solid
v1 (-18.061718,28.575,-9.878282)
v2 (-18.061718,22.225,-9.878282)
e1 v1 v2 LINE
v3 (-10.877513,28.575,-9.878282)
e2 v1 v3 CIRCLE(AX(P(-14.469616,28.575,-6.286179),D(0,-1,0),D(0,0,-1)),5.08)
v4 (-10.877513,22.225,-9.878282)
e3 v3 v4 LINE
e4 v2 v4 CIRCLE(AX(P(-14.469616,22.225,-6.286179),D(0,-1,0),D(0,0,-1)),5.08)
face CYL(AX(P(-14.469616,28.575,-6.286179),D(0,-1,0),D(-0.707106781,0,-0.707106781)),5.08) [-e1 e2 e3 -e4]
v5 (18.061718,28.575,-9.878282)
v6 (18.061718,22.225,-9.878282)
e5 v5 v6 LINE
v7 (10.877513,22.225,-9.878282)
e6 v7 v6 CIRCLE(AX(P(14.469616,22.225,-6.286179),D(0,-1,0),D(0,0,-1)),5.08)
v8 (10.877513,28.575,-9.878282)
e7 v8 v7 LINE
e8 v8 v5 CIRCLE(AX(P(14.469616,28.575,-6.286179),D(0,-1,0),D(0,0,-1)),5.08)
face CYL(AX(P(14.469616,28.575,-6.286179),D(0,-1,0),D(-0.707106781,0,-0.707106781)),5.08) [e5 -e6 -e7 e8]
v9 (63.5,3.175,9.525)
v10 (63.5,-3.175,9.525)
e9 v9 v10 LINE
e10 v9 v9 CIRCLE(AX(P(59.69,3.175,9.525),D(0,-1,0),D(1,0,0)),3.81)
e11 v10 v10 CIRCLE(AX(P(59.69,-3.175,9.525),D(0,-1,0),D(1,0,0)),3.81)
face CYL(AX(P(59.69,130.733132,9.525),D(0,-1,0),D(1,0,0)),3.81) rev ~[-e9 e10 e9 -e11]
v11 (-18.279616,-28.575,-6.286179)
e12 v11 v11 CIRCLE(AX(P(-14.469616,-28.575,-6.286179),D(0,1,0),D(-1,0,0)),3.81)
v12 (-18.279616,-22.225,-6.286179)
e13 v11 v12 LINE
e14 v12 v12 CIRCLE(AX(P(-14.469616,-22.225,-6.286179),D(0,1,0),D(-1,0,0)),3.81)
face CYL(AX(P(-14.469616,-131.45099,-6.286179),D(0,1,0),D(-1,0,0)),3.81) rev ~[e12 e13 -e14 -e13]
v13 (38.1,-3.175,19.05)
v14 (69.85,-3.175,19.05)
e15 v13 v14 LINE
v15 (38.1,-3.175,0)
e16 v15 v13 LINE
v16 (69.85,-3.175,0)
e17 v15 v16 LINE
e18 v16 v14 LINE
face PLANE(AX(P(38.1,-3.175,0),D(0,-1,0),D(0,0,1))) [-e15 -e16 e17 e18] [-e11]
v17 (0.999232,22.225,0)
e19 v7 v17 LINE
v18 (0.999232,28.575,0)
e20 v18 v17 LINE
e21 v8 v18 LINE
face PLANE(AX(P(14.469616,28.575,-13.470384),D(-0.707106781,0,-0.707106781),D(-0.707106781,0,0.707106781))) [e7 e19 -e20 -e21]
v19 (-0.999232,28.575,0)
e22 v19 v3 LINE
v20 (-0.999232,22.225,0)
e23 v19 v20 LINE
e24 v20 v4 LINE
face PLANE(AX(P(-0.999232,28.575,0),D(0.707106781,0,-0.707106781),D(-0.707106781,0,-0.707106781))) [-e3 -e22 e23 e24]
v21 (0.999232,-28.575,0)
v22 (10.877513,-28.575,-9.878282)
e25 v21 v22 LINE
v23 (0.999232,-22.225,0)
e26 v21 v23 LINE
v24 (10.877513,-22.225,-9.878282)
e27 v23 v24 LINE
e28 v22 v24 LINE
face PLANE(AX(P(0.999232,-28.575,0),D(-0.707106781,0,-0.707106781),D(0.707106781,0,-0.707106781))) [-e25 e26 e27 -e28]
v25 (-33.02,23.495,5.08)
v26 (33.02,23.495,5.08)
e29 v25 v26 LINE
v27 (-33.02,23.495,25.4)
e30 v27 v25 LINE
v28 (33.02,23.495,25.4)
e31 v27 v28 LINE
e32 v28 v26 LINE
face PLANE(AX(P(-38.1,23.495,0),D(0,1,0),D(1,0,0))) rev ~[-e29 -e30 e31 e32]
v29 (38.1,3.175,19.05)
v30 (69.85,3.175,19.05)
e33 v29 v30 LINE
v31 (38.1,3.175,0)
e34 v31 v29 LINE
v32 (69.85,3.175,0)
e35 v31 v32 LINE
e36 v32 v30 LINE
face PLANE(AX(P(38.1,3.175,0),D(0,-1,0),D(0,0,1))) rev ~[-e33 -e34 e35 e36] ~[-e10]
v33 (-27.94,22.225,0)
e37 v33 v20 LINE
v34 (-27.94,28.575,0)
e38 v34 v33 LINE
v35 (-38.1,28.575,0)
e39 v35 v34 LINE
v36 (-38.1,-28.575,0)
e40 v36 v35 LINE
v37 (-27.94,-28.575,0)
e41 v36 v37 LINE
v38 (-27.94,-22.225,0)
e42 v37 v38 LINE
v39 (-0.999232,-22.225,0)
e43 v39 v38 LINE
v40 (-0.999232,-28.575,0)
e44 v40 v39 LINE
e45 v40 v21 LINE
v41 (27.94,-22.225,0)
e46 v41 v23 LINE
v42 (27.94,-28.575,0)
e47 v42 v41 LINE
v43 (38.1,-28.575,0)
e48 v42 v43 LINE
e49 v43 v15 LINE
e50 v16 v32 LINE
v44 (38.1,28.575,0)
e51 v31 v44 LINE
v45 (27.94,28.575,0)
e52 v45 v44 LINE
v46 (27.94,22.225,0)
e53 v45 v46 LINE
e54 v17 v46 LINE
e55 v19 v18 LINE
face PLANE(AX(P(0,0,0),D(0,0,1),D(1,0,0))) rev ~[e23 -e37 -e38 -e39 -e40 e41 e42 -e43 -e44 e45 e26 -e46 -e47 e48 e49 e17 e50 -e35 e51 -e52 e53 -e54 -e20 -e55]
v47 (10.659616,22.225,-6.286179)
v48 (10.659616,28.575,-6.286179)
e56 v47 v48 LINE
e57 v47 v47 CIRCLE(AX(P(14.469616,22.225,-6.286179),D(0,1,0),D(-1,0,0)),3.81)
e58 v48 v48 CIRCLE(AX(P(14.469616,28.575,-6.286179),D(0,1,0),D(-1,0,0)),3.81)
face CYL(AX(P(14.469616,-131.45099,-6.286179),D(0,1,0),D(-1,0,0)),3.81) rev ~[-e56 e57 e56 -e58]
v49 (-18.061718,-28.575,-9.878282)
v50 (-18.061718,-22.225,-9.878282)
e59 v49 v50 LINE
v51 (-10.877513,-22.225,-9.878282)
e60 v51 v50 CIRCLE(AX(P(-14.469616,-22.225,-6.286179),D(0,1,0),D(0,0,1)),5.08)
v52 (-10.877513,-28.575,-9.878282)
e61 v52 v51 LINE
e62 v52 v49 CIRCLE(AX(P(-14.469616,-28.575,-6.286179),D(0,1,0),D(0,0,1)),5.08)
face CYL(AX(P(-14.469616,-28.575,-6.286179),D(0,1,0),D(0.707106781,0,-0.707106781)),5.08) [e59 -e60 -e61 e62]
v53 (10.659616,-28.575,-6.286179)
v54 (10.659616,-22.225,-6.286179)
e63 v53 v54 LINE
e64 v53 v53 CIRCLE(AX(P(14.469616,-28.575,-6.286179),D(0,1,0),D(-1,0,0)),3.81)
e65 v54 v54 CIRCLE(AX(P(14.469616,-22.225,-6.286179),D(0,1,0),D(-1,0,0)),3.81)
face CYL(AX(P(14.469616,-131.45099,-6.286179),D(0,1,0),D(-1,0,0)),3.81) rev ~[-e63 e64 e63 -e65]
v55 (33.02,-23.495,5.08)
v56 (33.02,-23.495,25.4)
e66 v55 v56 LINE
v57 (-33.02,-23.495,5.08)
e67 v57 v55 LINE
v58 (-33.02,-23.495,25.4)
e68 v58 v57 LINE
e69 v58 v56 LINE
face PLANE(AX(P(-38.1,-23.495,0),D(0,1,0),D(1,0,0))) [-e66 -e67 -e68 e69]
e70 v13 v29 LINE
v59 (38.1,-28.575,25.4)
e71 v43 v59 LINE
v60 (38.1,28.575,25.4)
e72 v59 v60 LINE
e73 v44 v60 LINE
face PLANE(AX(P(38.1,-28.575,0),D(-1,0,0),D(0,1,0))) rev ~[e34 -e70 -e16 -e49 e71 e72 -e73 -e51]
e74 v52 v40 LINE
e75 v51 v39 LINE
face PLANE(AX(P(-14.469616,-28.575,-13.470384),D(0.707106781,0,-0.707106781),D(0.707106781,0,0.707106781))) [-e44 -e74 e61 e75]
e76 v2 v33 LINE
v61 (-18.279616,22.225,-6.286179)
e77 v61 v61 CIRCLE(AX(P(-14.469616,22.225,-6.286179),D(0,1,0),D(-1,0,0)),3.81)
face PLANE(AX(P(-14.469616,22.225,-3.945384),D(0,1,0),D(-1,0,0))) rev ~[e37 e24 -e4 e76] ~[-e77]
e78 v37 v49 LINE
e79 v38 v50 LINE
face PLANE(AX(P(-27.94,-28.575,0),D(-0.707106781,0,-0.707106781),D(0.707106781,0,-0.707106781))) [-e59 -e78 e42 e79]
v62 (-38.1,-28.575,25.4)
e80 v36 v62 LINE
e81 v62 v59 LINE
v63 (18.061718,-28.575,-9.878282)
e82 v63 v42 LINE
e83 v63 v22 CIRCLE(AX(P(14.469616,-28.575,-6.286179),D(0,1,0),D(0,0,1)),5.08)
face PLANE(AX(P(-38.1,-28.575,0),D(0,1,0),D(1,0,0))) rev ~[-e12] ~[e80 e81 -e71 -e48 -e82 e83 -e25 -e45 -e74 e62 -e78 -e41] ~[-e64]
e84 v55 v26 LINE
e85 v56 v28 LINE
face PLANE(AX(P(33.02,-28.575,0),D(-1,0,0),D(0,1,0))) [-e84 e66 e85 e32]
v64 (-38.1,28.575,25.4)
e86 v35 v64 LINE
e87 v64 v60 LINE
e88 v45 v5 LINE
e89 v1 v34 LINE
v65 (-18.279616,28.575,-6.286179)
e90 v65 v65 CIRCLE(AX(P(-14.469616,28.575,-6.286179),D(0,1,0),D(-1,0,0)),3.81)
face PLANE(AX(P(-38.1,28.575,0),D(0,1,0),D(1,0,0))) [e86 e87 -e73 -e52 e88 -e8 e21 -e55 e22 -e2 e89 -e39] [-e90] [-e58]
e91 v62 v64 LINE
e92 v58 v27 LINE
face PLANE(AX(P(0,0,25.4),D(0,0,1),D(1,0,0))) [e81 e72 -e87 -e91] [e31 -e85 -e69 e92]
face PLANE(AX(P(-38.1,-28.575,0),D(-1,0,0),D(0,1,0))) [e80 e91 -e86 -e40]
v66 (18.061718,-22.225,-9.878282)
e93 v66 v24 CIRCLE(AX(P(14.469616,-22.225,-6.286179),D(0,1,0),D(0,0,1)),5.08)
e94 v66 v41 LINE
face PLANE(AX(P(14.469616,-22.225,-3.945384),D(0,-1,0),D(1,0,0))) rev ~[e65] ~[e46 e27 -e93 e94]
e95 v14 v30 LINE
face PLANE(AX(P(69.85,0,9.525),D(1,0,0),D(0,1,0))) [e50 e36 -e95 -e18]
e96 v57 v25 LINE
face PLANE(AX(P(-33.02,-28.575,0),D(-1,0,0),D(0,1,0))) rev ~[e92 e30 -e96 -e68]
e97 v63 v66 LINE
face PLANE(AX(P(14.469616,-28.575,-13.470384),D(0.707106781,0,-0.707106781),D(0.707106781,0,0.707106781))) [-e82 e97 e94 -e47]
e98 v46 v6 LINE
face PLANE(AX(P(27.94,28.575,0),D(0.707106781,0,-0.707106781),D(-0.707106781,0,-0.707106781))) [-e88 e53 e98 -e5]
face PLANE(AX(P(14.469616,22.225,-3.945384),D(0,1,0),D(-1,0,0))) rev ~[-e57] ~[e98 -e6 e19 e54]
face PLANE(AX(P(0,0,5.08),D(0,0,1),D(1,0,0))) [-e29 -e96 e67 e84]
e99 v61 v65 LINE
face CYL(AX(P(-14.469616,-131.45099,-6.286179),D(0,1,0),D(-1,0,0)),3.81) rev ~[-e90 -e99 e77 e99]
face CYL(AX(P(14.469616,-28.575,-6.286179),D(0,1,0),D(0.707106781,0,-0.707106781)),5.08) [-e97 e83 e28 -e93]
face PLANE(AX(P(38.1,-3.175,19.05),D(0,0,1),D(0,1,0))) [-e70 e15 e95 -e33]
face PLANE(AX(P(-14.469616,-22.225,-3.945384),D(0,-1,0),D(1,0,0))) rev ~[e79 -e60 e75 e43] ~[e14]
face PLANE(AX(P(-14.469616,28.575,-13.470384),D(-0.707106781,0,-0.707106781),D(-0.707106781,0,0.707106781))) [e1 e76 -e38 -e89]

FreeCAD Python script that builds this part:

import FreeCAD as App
import Part
import Sketcher
Q = App.Units.Quantity


def edges_at(feature, points):
    """Names of the edges that pass closest to the given points."""
    edges = feature.Shape.Edges
    near = lambda p: min(range(len(edges)), key=lambda i: edges[i].distToShape(Part.Vertex(*p))[0])
    return sorted({f"Edge{near(p) + 1}" for p in points})


def faces_at(feature, points):
    """Names of the faces that lie closest to the given points."""
    faces = feature.Shape.Faces
    near = lambda p: min(range(len(faces)), key=lambda i: faces[i].distToShape(Part.Vertex(*p))[0])
    return sorted({f"Face{near(p) + 1}" for p in points})

doc = App.newDocument("Part")
body = doc.addObject("PartDesign::Body", "Body")

sketch1 = doc.addObject("Sketcher::SketchObject", "Sketch")
body.addObject(sketch1)
sketch1.AttachmentSupport = (doc.XY_Plane, [""])
sketch1.MapMode = "FlatFace"
sketch1.addGeometry(Part.LineSegment(App.Vector(-38, 29, 0), App.Vector(-38, -29, 0)), False)
sketch1.addGeometry(Part.LineSegment(App.Vector(-38, -29, 0), App.Vector(38, -29, 0)), False)
sketch1.addGeometry(Part.LineSegment(App.Vector(38, -29, 0), App.Vector(38, 29, 0)), False)
sketch1.addGeometry(Part.LineSegment(App.Vector(38, 29, 0), App.Vector(-38, 29, 0)), False)
sketch1.addConstraint(Sketcher.Constraint("Coincident", 0, 2, 1, 1))
sketch1.addConstraint(Sketcher.Constraint("Coincident", 1, 2, 2, 1))
sketch1.addConstraint(Sketcher.Constraint("Coincident", 2, 2, 3, 1))
sketch1.addConstraint(Sketcher.Constraint("Coincident", 3, 2, 0, 1))
sketch1.addConstraint(Sketcher.Constraint("Vertical", 0))
sketch1.addConstraint(Sketcher.Constraint("Horizontal", 1))
sketch1.addConstraint(Sketcher.Constraint("Vertical", 2))
sketch1.addConstraint(Sketcher.Constraint("Horizontal", 3))
sketch1.addConstraint(Sketcher.Constraint("Symmetric", 0, 2, 2, 2, -1, 1))
sketch1.addConstraint(Sketcher.Constraint("DistanceX", 1, 1, 1, 2, Q("3 in")))
sketch1.addConstraint(Sketcher.Constraint("DistanceY", 0, 2, 0, 1, Q("2.25 in")))
pad1 = doc.addObject("PartDesign::Pad", "Pad")
body.addObject(pad1)
pad1.Profile = sketch1
pad1.Length = Q("1 in")
doc.recompute()

thickness = doc.addObject("PartDesign::Thickness", "Thickness")
body.addObject(thickness)
thickness.Base = (pad1, faces_at(pad1, [(0, 0, 25.4)]))
thickness.Value = Q("0.2 in")
thickness.Reversed = True
thickness.Join = "Arc"

sketch2 = doc.addObject("Sketcher::SketchObject", "Sketch001")
body.addObject(sketch2)
sketch2.AttachmentSupport = (doc.XZ_Plane, [""])
sketch2.MapMode = "FlatFace"
sketch2.AttachmentOffset = App.Placement(App.Vector(0, 0, 1.125 * 25.4), App.Rotation())
sketch2.addGeometry(Part.LineSegment(App.Vector(-1, 0, 0), App.Vector(-28, 0, 0)), False)
sketch2.addGeometry(Part.LineSegment(App.Vector(-28, 0, 0), App.Vector(-14, -13, 0)), False)
sketch2.addGeometry(Part.LineSegment(App.Vector(-14, -13, 0), App.Vector(-1, 0, 0)), False)
sketch2.addGeometry(Part.LineSegment(App.Vector(28, 0, 0), App.Vector(1, 0, 0)), False)
sketch2.addGeometry(Part.LineSegment(App.Vector(1, 0, 0), App.Vector(14, -13, 0)), False)
sketch2.addGeometry(Part.LineSegment(App.Vector(14, -13, 0), App.Vector(28, 0, 0)), False)
sketch2.addConstraint(Sketcher.Constraint("Coincident", 0, 2, 1, 1))
sketch2.addConstraint(Sketcher.Constraint("Coincident", 1, 2, 2, 1))
sketch2.addConstraint(Sketcher.Constraint("Coincident", 2, 2, 0, 1))
sketch2.addConstraint(Sketcher.Constraint("Coincident", 3, 2, 4, 1))
sketch2.addConstraint(Sketcher.Constraint("Coincident", 4, 2, 5, 1))
sketch2.addConstraint(Sketcher.Constraint("Coincident", 5, 2, 3, 1))
sketch2.addConstraint(Sketcher.Constraint("Horizontal", 0))
sketch2.addConstraint(Sketcher.Constraint("Horizontal", 3))
sketch2.addConstraint(Sketcher.Constraint("Symmetric", 2, 2, 3, 2, -1, 1))
sketch2.addConstraint(Sketcher.Constraint("Symmetric", 1, 2, 4, 2, -2))
sketch2.addConstraint(Sketcher.Constraint("Symmetric", 0, 2, 5, 2, -2))
sketch2.addConstraint(Sketcher.Constraint("Perpendicular", 1, 2))
sketch2.addConstraint(Sketcher.Constraint("Perpendicular", 2, 4))
sketch2.addConstraint(Sketcher.Constraint("DistanceX", 0, 2, -1, 1, Q("1.1 in")))
sketch2.addConstraint(Sketcher.Constraint("Distance", 1, Q("0.75 in")))
pad2 = doc.addObject("PartDesign::Pad", "Pad001")
body.addObject(pad2)
pad2.Profile = sketch2
pad2.Length = Q("0.25 in")
pad2.Reversed = True
doc.recompute()

fillet = doc.addObject("PartDesign::Fillet", "Fillet")
body.addObject(fillet)
fillet.Base = (pad2, edges_at(pad2, [(-14.47, -25.4, -13.47), (14.47, -25.4, -13.47)]))
fillet.Radius = Q("0.2 in")

sketch3 = doc.addObject("Sketcher::SketchObject", "Sketch002")
body.addObject(sketch3)
sketch3.AttachmentSupport = (doc.XZ_Plane, [""])
sketch3.MapMode = "FlatFace"
sketch3.AttachmentOffset = App.Placement(App.Vector(0, 0, -1.125 * 25.4), App.Rotation())
sketch3.addGeometry(Part.LineSegment(App.Vector(1, 0, 0), App.Vector(28, 0, 0)), False)
sketch3.addGeometry(Part.LineSegment(App.Vector(28, 0, 0), App.Vector(14, -13, 0)), False)
sketch3.addGeometry(Part.LineSegment(App.Vector(14, -13, 0), App.Vector(1, 0, 0)), False)
sketch3.addGeometry(Part.LineSegment(App.Vector(-28, 0, 0), App.Vector(-1, 0, 0)), False)
sketch3.addGeometry(Part.LineSegment(App.Vector(-1, 0, 0), App.Vector(-14, -13, 0)), False)
sketch3.addGeometry(Part.LineSegment(App.Vector(-14, -13, 0), App.Vector(-28, 0, 0)), False)
sketch3.addConstraint(Sketcher.Constraint("Coincident", 0, 2, 1, 1))
sketch3.addConstraint(Sketcher.Constraint("Coincident", 1, 2, 2, 1))
sketch3.addConstraint(Sketcher.Constraint("Coincident", 2, 2, 0, 1))
sketch3.addConstraint(Sketcher.Constraint("Coincident", 3, 2, 4, 1))
sketch3.addConstraint(Sketcher.Constraint("Coincident", 4, 2, 5, 1))
sketch3.addConstraint(Sketcher.Constraint("Coincident", 5, 2, 3, 1))
sketch3.addConstraint(Sketcher.Constraint("Horizontal", 0))
sketch3.addConstraint(Sketcher.Constraint("Horizontal", 3))
sketch3.addConstraint(Sketcher.Constraint("Symmetric", 2, 2, 3, 2, -1, 1))
sketch3.addConstraint(Sketcher.Constraint("Symmetric", 1, 2, 4, 2, -2))
sketch3.addConstraint(Sketcher.Constraint("Symmetric", 0, 2, 5, 2, -2))
sketch3.addConstraint(Sketcher.Constraint("Perpendicular", 1, 2))
sketch3.addConstraint(Sketcher.Constraint("Perpendicular", 2, 4))
sketch3.addConstraint(Sketcher.Constraint("DistanceX", -1, 1, 0, 2, Q("1.1 in")))
sketch3.addConstraint(Sketcher.Constraint("Distance", 1, Q("0.75 in")))
pad3 = doc.addObject("PartDesign::Pad", "Pad002")
body.addObject(pad3)
pad3.Profile = sketch3
pad3.Length = Q("0.25 in")

sketch4 = doc.addObject("Sketcher::SketchObject", "Sketch003")
body.addObject(sketch4)
sketch4.AttachmentSupport = (doc.XZ_Plane, [""])
sketch4.MapMode = "FlatFace"
sketch4.AttachmentOffset = App.Placement(App.Vector(0, 0, 1.125 * 25.4), App.Rotation())
sketch4.addGeometry(Part.Circle(App.Vector(-14.5, -6.3, 0), App.Vector(0, 0, 1), 3.8), False)
sketch4.addGeometry(Part.Circle(App.Vector(14.5, -6.3, 0), App.Vector(0, 0, 1), 3.8), False)
sketch4.addConstraint(Sketcher.Constraint("Equal", 0, 1))
sketch4.addConstraint(Sketcher.Constraint("Symmetric", 0, 3, 1, 3, -2))
sketch4.addConstraint(Sketcher.Constraint("Diameter", 0, Q("0.3 in")))
sketch4.addConstraint(Sketcher.Constraint("DistanceY", 0, 3, -1, 1, 6.286179))
sketch4.addConstraint(Sketcher.Constraint("DistanceX", 0, 3, 1, 3, 28.939232))
doc.recompute()
hole = doc.addObject("PartDesign::Hole", "Hole")
body.addObject(hole)
hole.Profile = sketch4
hole.ThreadType = "None"
hole.Diameter = Q("0.3 in")
hole.DepthType = "ThroughAll"
doc.recompute()

fillet2 = doc.addObject("PartDesign::Fillet", "Fillet001")
body.addObject(fillet2)
fillet2.Base = (hole, edges_at(hole, [(14.47, 25.4, -13.47), (-14.47, 25.4, -13.47)]))
fillet2.Radius = Q("0.2 in")

sketch5 = doc.addObject("Sketcher::SketchObject", "Sketch004")
body.addObject(sketch5)
sketch5.AttachmentSupport = (doc.YZ_Plane, [""])
sketch5.MapMode = "FlatFace"
sketch5.AttachmentOffset = App.Placement(App.Vector(0, 0, 1.5 * 25.4), App.Rotation())
sketch5.addGeometry(Part.LineSegment(App.Vector(-3, 19, 0), App.Vector(-3, 0, 0)), False)
sketch5.addGeometry(Part.LineSegment(App.Vector(-3, 0, 0), App.Vector(3, 0, 0)), False)
sketch5.addGeometry(Part.LineSegment(App.Vector(3, 0, 0), App.Vector(3, 19, 0)), False)
sketch5.addGeometry(Part.LineSegment(App.Vector(3, 19, 0), App.Vector(-3, 19, 0)), False)
sketch5.addConstraint(Sketcher.Constraint("Coincident", 0, 2, 1, 1))
sketch5.addConstraint(Sketcher.Constraint("Coincident", 1, 2, 2, 1))
sketch5.addConstraint(Sketcher.Constraint("Coincident", 2, 2, 3, 1))
sketch5.addConstraint(Sketcher.Constraint("Coincident", 3, 2, 0, 1))
sketch5.addConstraint(Sketcher.Constraint("Vertical", 0))
sketch5.addConstraint(Sketcher.Constraint("Horizontal", 1))
sketch5.addConstraint(Sketcher.Constraint("Vertical", 2))
sketch5.addConstraint(Sketcher.Constraint("Horizontal", 3))
sketch5.addConstraint(Sketcher.Constraint("Symmetric", 0, 2, 1, 2, -1, 1))
sketch5.addConstraint(Sketcher.Constraint("DistanceX", 1, 1, 1, 2, Q("0.25 in")))
sketch5.addConstraint(Sketcher.Constraint("DistanceY", 0, 2, 0, 1, Q("0.75 in")))
pad4 = doc.addObject("PartDesign::Pad", "Pad003")
body.addObject(pad4)
pad4.Profile = sketch5
pad4.Length = Q("1.25 in")

sketch6 = doc.addObject("Sketcher::SketchObject", "Sketch005")
body.addObject(sketch6)
sketch6.AttachmentSupport = (doc.XZ_Plane, [""])
sketch6.MapMode = "FlatFace"
sketch6.AttachmentOffset = App.Placement(App.Vector(0, 0, -0.125 * 25.4), App.Rotation())
sketch6.addGeometry(Part.Circle(App.Vector(59.7, 9.5, 0), App.Vector(0, 0, 1), 3.8), False)
sketch6.addConstraint(Sketcher.Constraint("Diameter", 0, Q("0.3 in")))
sketch6.addConstraint(Sketcher.Constraint("DistanceX", -1, 1, 0, 3, Q("2.35 in")))
sketch6.addConstraint(Sketcher.Constraint("DistanceY", -1, 1, 0, 3, Q("0.375 in")))
doc.recompute()
hole2 = doc.addObject("PartDesign::Hole", "Hole001")
body.addObject(hole2)
hole2.Profile = sketch6
hole2.ThreadType = "None"
hole2.Diameter = Q("0.3 in")
hole2.DepthType = "ThroughAll"
hole2.Reversed = True

doc.recompute()
